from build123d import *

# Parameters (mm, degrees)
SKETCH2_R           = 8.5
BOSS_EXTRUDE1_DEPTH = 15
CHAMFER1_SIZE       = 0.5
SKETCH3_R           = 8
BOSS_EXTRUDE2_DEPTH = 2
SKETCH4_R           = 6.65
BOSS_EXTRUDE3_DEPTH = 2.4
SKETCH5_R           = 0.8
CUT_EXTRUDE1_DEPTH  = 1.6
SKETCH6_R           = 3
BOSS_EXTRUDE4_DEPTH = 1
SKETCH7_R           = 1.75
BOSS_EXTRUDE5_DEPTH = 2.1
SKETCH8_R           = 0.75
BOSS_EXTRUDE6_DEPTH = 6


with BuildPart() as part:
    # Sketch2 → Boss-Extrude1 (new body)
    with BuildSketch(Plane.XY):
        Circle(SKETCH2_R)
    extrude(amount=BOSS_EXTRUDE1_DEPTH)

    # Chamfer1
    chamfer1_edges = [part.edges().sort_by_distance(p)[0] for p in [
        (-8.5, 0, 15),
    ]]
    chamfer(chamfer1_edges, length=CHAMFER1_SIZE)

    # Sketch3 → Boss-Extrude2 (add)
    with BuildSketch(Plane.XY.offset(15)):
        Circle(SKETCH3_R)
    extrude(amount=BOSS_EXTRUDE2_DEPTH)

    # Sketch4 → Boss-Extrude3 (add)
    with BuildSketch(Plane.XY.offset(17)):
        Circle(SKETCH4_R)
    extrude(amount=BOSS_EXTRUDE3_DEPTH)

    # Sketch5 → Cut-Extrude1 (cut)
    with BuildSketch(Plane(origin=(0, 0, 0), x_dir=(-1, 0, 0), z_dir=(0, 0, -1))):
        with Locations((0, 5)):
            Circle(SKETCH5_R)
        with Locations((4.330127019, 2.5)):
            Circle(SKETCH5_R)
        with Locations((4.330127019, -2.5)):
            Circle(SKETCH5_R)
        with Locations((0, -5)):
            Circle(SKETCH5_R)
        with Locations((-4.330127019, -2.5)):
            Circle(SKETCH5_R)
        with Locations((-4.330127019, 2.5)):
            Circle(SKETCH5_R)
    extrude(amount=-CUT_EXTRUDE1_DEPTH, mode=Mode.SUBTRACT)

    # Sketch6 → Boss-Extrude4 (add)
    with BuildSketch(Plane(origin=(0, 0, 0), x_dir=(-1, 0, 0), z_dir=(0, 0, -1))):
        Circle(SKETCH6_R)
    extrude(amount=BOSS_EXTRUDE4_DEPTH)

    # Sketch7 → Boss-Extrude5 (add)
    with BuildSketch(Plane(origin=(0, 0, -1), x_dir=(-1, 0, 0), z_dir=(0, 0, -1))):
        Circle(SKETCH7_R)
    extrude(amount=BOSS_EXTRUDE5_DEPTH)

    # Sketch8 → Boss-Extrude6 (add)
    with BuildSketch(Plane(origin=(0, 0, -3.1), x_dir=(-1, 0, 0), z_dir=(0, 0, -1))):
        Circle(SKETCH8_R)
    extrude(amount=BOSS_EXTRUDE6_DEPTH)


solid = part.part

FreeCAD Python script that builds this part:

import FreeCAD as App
import Part
import Sketcher
Q = App.Units.Quantity


def edges_at(feature, points):
    """Names of the edges that pass closest to the given points."""
    edges = feature.Shape.Edges
    near = lambda p: min(range(len(edges)), key=lambda i: edges[i].distToShape(Part.Vertex(*p))[0])
    return sorted({f"Edge{near(p) + 1}" for p in points})

doc = App.newDocument("Part")
body = doc.addObject("PartDesign::Body", "Body")

sketch1 = body.newObject("Sketcher::SketchObject", "Sketch")
sketch1.AttachmentSupport = (doc.getObject("XY_Plane"), [""])
sketch1.MapMode = "FlatFace"
sketch1.addGeometry(Part.Circle(App.Vector(0, 0, 0), App.Vector(0, 0, 1), 8), False)
sketch1.addConstraint([
    Sketcher.Constraint("Coincident", 0, 3, -1, 1),
    Sketcher.Constraint("Diameter", 0, Q("17 mm")),
])
pad1 = body.newObject("PartDesign::Pad", "Pad")
pad1.Profile = sketch1
pad1.Length = 15
doc.recompute()

chamfer = body.newObject("PartDesign::Chamfer", "Chamfer")
chamfer.Base = (pad1, edges_at(pad1, [(-8.5, 0, 15)]))
chamfer.Size = 0.5

sketch2 = body.newObject("Sketcher::SketchObject", "Sketch001")
sketch2.AttachmentSupport = (doc.getObject("XY_Plane"), [""])
sketch2.MapMode = "FlatFace"
sketch2.AttachmentOffset = App.Placement(App.Vector(0, 0, 15), App.Rotation())
sketch2.addGeometry(Part.Circle(App.Vector(0, 0, 0), App.Vector(0, 0, 1), 8), False)
sketch2.addConstraint([
    Sketcher.Constraint("Coincident", 0, 3, -1, 1),
    Sketcher.Constraint("Diameter", 0, Q("16 mm")),
])
pad2 = body.newObject("PartDesign::Pad", "Pad001")
pad2.Profile = sketch2
pad2.Length = 2

sketch3 = body.newObject("Sketcher::SketchObject", "Sketch002")
sketch3.AttachmentSupport = (doc.getObject("XY_Plane"), [""])
sketch3.MapMode = "FlatFace"
sketch3.AttachmentOffset = App.Placement(App.Vector(0, 0, 17), App.Rotation())
sketch3.addGeometry(Part.Circle(App.Vector(0, 0, 0), App.Vector(0, 0, 1), 7), False)
sketch3.addConstraint([
    Sketcher.Constraint("Coincident", 0, 3, -1, 1),
    Sketcher.Constraint("Diameter", 0, Q("13.3 mm")),
])
pad3 = body.newObject("PartDesign::Pad", "Pad002")
pad3.Profile = sketch3
pad3.Length = 2.4

sketch4 = body.newObject("Sketcher::SketchObject", "Sketch003")
sketch4.AttachmentSupport = (doc.getObject("XY_Plane"), [""])
sketch4.MapMode = "FlatFace"
sketch4.addGeometry([
    Part.Circle(App.Vector(0, 5, 0), App.Vector(0, 0, 1), 0.8),
    Part.Circle(App.Vector(-4.3, 2.5, 0), App.Vector(0, 0, 1), 0.8),
    Part.Circle(App.Vector(-4.3, -2.5, 0), App.Vector(0, 0, 1), 0.8),
    Part.Circle(App.Vector(0, -5, 0), App.Vector(0, 0, 1), 0.8),
    Part.Circle(App.Vector(4.3, -2.5, 0), App.Vector(0, 0, 1), 0.8),
    Part.Circle(App.Vector(4.3, 2.5, 0), App.Vector(0, 0, 1), 0.8),
], False)
sketch4.addConstraint([
    Sketcher.Constraint("Equal", 0, 1),
    Sketcher.Constraint("Equal", 1, 2),
    Sketcher.Constraint("Equal", 2, 3),
    Sketcher.Constraint("Equal", 3, 4),
    Sketcher.Constraint("Equal", 4, 5),
    Sketcher.Constraint("Symmetric", 0, 3, 3, 3, -1, 1),
    Sketcher.Constraint("Symmetric", 1, 3, 4, 3, -1, 1),
    Sketcher.Constraint("Symmetric", 2, 3, 5, 3, -1, 1),
    Sketcher.Constraint("Symmetric", 2, 3, 4, 3, -2),
    Sketcher.Constraint("PointOnObject", 0, 3, -2),
    Sketcher.Constraint("Diameter", 0, Q("1.6 mm")),
    Sketcher.Constraint("DistanceY", -1, 1, 0, 3, Q("5 mm")),
    Sketcher.Constraint("DistanceY", 2, 3, 1, 3, Q("5 mm")),
    Sketcher.Constraint("DistanceX", 1, 3, -1, 1, Q("4.330127 mm")),
])
pocket1 = body.newObject("PartDesign::Pocket", "Pocket")
pocket1.Profile = sketch4
pocket1.Length = 1.6
pocket1.Reversed = True

sketch5 = body.newObject("Sketcher::SketchObject", "Sketch004")
sketch5.AttachmentSupport = (doc.getObject("XY_Plane"), [""])
sketch5.MapMode = "FlatFace"
sketch5.addGeometry(Part.Circle(App.Vector(0, 0, 0), App.Vector(0, 0, 1), 3), False)
sketch5.addConstraint([
    Sketcher.Constraint("Coincident", 0, 3, -1, 1),
    Sketcher.Constraint("Diameter", 0, Q("6 mm")),
])
pad4 = body.newObject("PartDesign::Pad", "Pad003")
pad4.Profile = sketch5
pad4.Length = 1
pad4.Reversed = True

sketch6 = body.newObject("Sketcher::SketchObject", "Sketch005")
sketch6.AttachmentSupport = (doc.getObject("XY_Plane"), [""])
sketch6.MapMode = "FlatFace"
sketch6.AttachmentOffset = App.Placement(App.Vector(0, 0, -1), App.Rotation())
sketch6.addGeometry(Part.Circle(App.Vector(0, 0, 0), App.Vector(0, 0, 1), 1.8), False)
sketch6.addConstraint([
    Sketcher.Constraint("Coincident", 0, 3, -1, 1),
    Sketcher.Constraint("Diameter", 0, Q("3.5 mm")),
])
pad5 = body.newObject("PartDesign::Pad", "Pad004")
pad5.Profile = sketch6
pad5.Length = 2.1
pad5.Reversed = True

sketch7 = body.newObject("Sketcher::SketchObject", "Sketch006")
sketch7.AttachmentSupport = (doc.getObject("XY_Plane"), [""])
sketch7.MapMode = "FlatFace"
sketch7.AttachmentOffset = App.Placement(App.Vector(0, 0, -3.1), App.Rotation())
sketch7.addGeometry(Part.Circle(App.Vector(0, 0, 0), App.Vector(0, 0, 1), 0.8), False)
sketch7.addConstraint([
    Sketcher.Constraint("Coincident", 0, 3, -1, 1),
    Sketcher.Constraint("Diameter", 0, Q("1.5 mm")),
])
pad6 = body.newObject("PartDesign::Pad", "Pad005")
pad6.Profile = sketch7
pad6.Length = 6
pad6.Reversed = True

doc.recompute()
